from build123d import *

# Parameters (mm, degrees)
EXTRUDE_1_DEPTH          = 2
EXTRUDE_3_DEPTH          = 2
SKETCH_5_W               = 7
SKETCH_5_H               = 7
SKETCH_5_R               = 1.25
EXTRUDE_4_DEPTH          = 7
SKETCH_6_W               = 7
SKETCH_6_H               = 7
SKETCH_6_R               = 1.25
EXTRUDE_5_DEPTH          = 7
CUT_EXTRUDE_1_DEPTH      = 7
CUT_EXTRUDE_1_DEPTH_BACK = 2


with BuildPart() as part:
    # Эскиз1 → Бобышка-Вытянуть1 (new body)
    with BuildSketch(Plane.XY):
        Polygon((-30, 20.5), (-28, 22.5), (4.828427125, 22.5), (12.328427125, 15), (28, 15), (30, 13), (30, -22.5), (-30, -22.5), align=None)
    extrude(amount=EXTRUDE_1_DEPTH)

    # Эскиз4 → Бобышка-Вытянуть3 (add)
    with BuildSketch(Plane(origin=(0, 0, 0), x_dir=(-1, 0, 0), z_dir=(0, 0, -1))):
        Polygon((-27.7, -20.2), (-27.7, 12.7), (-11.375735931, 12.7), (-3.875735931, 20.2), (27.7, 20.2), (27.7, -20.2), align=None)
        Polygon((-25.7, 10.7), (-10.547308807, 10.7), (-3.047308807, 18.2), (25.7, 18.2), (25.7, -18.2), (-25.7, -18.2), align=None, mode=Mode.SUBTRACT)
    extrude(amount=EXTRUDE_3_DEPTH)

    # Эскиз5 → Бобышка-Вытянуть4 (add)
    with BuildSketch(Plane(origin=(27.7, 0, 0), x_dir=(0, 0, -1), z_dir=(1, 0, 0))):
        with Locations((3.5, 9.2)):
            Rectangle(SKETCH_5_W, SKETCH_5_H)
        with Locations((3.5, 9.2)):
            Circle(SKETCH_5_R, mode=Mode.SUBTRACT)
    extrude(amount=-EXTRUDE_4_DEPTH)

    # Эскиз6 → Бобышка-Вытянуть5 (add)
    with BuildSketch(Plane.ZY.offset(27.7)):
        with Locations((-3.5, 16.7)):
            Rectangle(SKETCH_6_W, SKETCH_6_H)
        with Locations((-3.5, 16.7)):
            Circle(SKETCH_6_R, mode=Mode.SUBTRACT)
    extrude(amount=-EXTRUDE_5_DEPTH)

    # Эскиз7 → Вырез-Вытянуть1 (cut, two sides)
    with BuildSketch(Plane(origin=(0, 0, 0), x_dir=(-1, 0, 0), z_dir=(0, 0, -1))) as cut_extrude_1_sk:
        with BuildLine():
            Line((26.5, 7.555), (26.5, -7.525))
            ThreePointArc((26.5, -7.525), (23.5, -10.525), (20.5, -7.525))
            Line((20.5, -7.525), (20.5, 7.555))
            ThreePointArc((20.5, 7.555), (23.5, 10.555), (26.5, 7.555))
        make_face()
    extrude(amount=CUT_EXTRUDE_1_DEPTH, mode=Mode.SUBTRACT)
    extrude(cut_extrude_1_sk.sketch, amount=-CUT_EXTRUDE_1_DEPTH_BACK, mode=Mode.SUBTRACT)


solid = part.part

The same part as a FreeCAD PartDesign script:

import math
import FreeCAD as App
import Part
import Sketcher
Q = App.Units.Quantity

doc = App.newDocument("Part")
params = doc.addObject("Spreadsheet::Sheet", "Params")
for row, (alias, value) in enumerate([
    ("sketch1_width", "60 mm"),
    ("sketch1_height", "43 mm"),
    ("sketch1_height2", "35.5 mm"),
    ("pad1_length", "2 mm"),
    ("sketch2_width", "55.4 mm"),
    ("sketch2_width2", "51.4 mm"),
    ("sketch2_height", "32.9 mm"),
    ("sketch2_height2", "40.4 mm"),
    ("sketch2_height3", "36.4 mm"),
    ("pad2_length", "2 mm"),
    ("sketch3_diameter", "2.5 mm"),
    ("sketch3_width", "7 mm"),
    ("pad3_length", "7 mm"),
    ("sketch4_diameter", "2.5 mm"),
    ("sketch4_width", "7 mm"),
    ("pad4_length", "7 mm"),
    ("sketch5_radius", "3 mm"),
    ("sketch5_height", "15.08 mm"),
], start=1):
    params.set(f"A{row}", alias)
    params.set(f"B{row}", "=" + value)
    params.setAlias(f"B{row}", alias)

body = doc.addObject("PartDesign::Body", "Body")

sketch1 = doc.addObject("Sketcher::SketchObject", "Sketch")
body.addObject(sketch1)
sketch1.AttachmentSupport = (doc.XY_Plane, [""])
sketch1.MapMode = "FlatFace"
sketch1.addGeometry([
    Part.LineSegment(App.Vector(-28, 22.5, 0), App.Vector(-30, 20.5, 0)),
    Part.LineSegment(App.Vector(-30, 20.5, 0), App.Vector(-30, -22.5, 0)),
    Part.LineSegment(App.Vector(-30, -22.5, 0), App.Vector(30, -22.5, 0)),
    Part.LineSegment(App.Vector(30, -22.5, 0), App.Vector(30, 13, 0)),
    Part.LineSegment(App.Vector(30, 13, 0), App.Vector(28, 15, 0)),
    Part.LineSegment(App.Vector(28, 15, 0), App.Vector(12.328427, 15, 0)),
    Part.LineSegment(App.Vector(12.328427, 15, 0), App.Vector(4.828427, 22.5, 0)),
    Part.LineSegment(App.Vector(4.828427, 22.5, 0), App.Vector(-28, 22.5, 0)),
], False)
sketch1.addConstraint([
    Sketcher.Constraint("Coincident", 0, 2, 1, 1),
    Sketcher.Constraint("Coincident", 1, 2, 2, 1),
    Sketcher.Constraint("Coincident", 2, 2, 3, 1),
    Sketcher.Constraint("Coincident", 3, 2, 4, 1),
    Sketcher.Constraint("Coincident", 4, 2, 5, 1),
    Sketcher.Constraint("Coincident", 5, 2, 6, 1),
    Sketcher.Constraint("Coincident", 6, 2, 7, 1),
    Sketcher.Constraint("Coincident", 7, 2, 0, 1),
    Sketcher.Constraint("Vertical", 1),
    Sketcher.Constraint("Horizontal", 2),
    Sketcher.Constraint("Vertical", 3),
    Sketcher.Constraint("Horizontal", 5),
    Sketcher.Constraint("Horizontal", 7),
    Sketcher.Constraint("Perpendicular", 0, 4),
    Sketcher.Constraint("Parallel", 4, 6),
    Sketcher.Constraint("Equal", 0, 4),
    Sketcher.Constraint("DistanceX", 2, 1, 2, 2, Q("60 mm")),
    Sketcher.Constraint("DistanceY", 1, 2, 1, 1, Q("43 mm")),
    Sketcher.Constraint("Angle", 0, Q("-135 deg")),
    Sketcher.Constraint("DistanceY", 3, 1, 3, 2, Q("35.5 mm")),
    Sketcher.Constraint("DistanceX", 0, 2, -1, 1, Q("30 mm")),
    Sketcher.Constraint("DistanceY", -1, 1, 3, 2, Q("13 mm")),
    Sketcher.Constraint("DistanceX", -1, 1, 4, 2, Q("28 mm")),
    Sketcher.Constraint("DistanceX", 5, 2, 5, 1, Q("15.671573 mm")),
])
sketch1.setExpression("Constraints[16]", "Params.sketch1_width")
sketch1.setExpression("Constraints[17]", "Params.sketch1_height")
sketch1.setExpression("Constraints[19]", "Params.sketch1_height2")
pad1 = doc.addObject("PartDesign::Pad", "Pad")
body.addObject(pad1)
pad1.Profile = sketch1
pad1.setExpression("Length", "Params.pad1_length")

sketch2 = doc.addObject("Sketcher::SketchObject", "Sketch001")
body.addObject(sketch2)
sketch2.AttachmentSupport = (doc.XY_Plane, [""])
sketch2.MapMode = "FlatFace"
sketch2.addGeometry([
    Part.LineSegment(App.Vector(27.7, 12.7, 0), App.Vector(27.7, -20.2, 0)),
    Part.LineSegment(App.Vector(27.7, -20.2, 0), App.Vector(-27.7, -20.2, 0)),
    Part.LineSegment(App.Vector(-27.7, -20.2, 0), App.Vector(-27.7, 20.2, 0)),
    Part.LineSegment(App.Vector(-27.7, 20.2, 0), App.Vector(3.875736, 20.2, 0)),
    Part.LineSegment(App.Vector(3.875736, 20.2, 0), App.Vector(11.375736, 12.7, 0)),
    Part.LineSegment(App.Vector(11.375736, 12.7, 0), App.Vector(27.7, 12.7, 0)),
    Part.LineSegment(App.Vector(25.7, 10.7, 0), App.Vector(10.547309, 10.7, 0)),
    Part.LineSegment(App.Vector(10.547309, 10.7, 0), App.Vector(3.047309, 18.2, 0)),
    Part.LineSegment(App.Vector(3.047309, 18.2, 0), App.Vector(-25.7, 18.2, 0)),
    Part.LineSegment(App.Vector(-25.7, 18.2, 0), App.Vector(-25.7, -18.2, 0)),
    Part.LineSegment(App.Vector(-25.7, -18.2, 0), App.Vector(25.7, -18.2, 0)),
    Part.LineSegment(App.Vector(25.7, -18.2, 0), App.Vector(25.7, 10.7, 0)),
], False)
sketch2.addConstraint([
    Sketcher.Constraint("Coincident", 0, 2, 1, 1),
    Sketcher.Constraint("Coincident", 1, 2, 2, 1),
    Sketcher.Constraint("Coincident", 2, 2, 3, 1),
    Sketcher.Constraint("Coincident", 3, 2, 4, 1),
    Sketcher.Constraint("Coincident", 4, 2, 5, 1),
    Sketcher.Constraint("Coincident", 5, 2, 0, 1),
    Sketcher.Constraint("Coincident", 6, 2, 7, 1),
    Sketcher.Constraint("Coincident", 7, 2, 8, 1),
    Sketcher.Constraint("Coincident", 8, 2, 9, 1),
    Sketcher.Constraint("Coincident", 9, 2, 10, 1),
    Sketcher.Constraint("Coincident", 10, 2, 11, 1),
    Sketcher.Constraint("Coincident", 11, 2, 6, 1),
    Sketcher.Constraint("Vertical", 0),
    Sketcher.Constraint("Horizontal", 1),
    Sketcher.Constraint("Vertical", 2),
    Sketcher.Constraint("Horizontal", 3),
    Sketcher.Constraint("Horizontal", 5),
    Sketcher.Constraint("Horizontal", 6),
    Sketcher.Constraint("Horizontal", 8),
    Sketcher.Constraint("Vertical", 9),
    Sketcher.Constraint("Horizontal", 10),
    Sketcher.Constraint("Vertical", 11),
    Sketcher.Constraint("Symmetric", 0, 2, 2, 2, -1, 1),
    Sketcher.Constraint("Symmetric", 8, 2, 10, 2, -1, 1),
    Sketcher.Constraint("Parallel", 4, 7),
    Sketcher.Constraint("Equal", 4, 7),
    Sketcher.Constraint("Angle", 4, Q("-45 deg")),
    Sketcher.Constraint("DistanceX", 1, 2, 1, 1, Q("55.4 mm")),
    Sketcher.Constraint("DistanceX", 10, 1, 10, 2, Q("51.4 mm")),
    Sketcher.Constraint("DistanceY", 0, 2, 0, 1, Q("32.9 mm")),
    Sketcher.Constraint("DistanceY", 2, 1, 2, 2, Q("40.4 mm")),
    Sketcher.Constraint("DistanceY", 9, 2, 9, 1, Q("36.4 mm")),
    Sketcher.Constraint("DistanceX", 6, 2, 6, 1, Q("15.152691 mm")),
    Sketcher.Constraint("DistanceX", 3, 1, 3, 2, Q("31.575736 mm")),
])
sketch2.setExpression("Constraints[27]", "Params.sketch2_width")
sketch2.setExpression("Constraints[28]", "Params.sketch2_width2")
sketch2.setExpression("Constraints[29]", "Params.sketch2_height")
sketch2.setExpression("Constraints[30]", "Params.sketch2_height2")
sketch2.setExpression("Constraints[31]", "Params.sketch2_height3")
pad2 = doc.addObject("PartDesign::Pad", "Pad001")
body.addObject(pad2)
pad2.Profile = sketch2
pad2.setExpression("Length", "Params.pad2_length")
pad2.Reversed = True

sketch3 = doc.addObject("Sketcher::SketchObject", "Sketch002")
body.addObject(sketch3)
sketch3.AttachmentSupport = (doc.YZ_Plane, [""])
sketch3.MapMode = "FlatFace"
sketch3.AttachmentOffset = App.Placement(App.Vector(0, 0, 27.7), App.Rotation())
sketch3.addGeometry([
    Part.LineSegment(App.Vector(12.7, 0, 0), App.Vector(5.7, 0, 0)),
    Part.LineSegment(App.Vector(5.7, 0, 0), App.Vector(5.7, -7, 0)),
    Part.LineSegment(App.Vector(5.7, -7, 0), App.Vector(12.7, -7, 0)),
    Part.LineSegment(App.Vector(12.7, -7, 0), App.Vector(12.7, 0, 0)),
    Part.Circle(App.Vector(9.2, -3.5, 0), App.Vector(0, 0, 1), 1.25),
], False)
sketch3.addConstraint([
    Sketcher.Constraint("Coincident", 0, 2, 1, 1),
    Sketcher.Constraint("Coincident", 1, 2, 2, 1),
    Sketcher.Constraint("Coincident", 2, 2, 3, 1),
    Sketcher.Constraint("Coincident", 3, 2, 0, 1),
    Sketcher.Constraint("Horizontal", 0),
    Sketcher.Constraint("Vertical", 1),
    Sketcher.Constraint("Horizontal", 2),
    Sketcher.Constraint("Vertical", 3),
    Sketcher.Constraint("PointOnObject", 0, 2, -1),
    Sketcher.Constraint("Equal", 2, 1),
    Sketcher.Constraint("Diameter", 4, Q("2.5 mm")),
    Sketcher.Constraint("DistanceX", 0, 2, 0, 1, Q("7 mm")),
    Sketcher.Constraint("DistanceX", -1, 1, 4, 3, Q("9.2 mm")),
    Sketcher.Constraint("DistanceY", 4, 3, -1, 1, Q("3.5 mm")),
    Sketcher.Constraint("DistanceX", -1, 1, 0, 2, Q("5.7 mm")),
])
sketch3.setExpression("Constraints[10]", "Params.sketch3_diameter")
sketch3.setExpression("Constraints[11]", "Params.sketch3_width")
pad3 = doc.addObject("PartDesign::Pad", "Pad002")
body.addObject(pad3)
pad3.Profile = sketch3
pad3.setExpression("Length", "Params.pad3_length")
pad3.Reversed = True

sketch4 = doc.addObject("Sketcher::SketchObject", "Sketch003")
body.addObject(sketch4)
sketch4.AttachmentSupport = (doc.YZ_Plane, [""])
sketch4.MapMode = "FlatFace"
sketch4.AttachmentOffset = App.Placement(App.Vector(0, 0, -27.7), App.Rotation())
sketch4.addGeometry([
    Part.LineSegment(App.Vector(20.2, -7, 0), App.Vector(13.2, -7, 0)),
    Part.LineSegment(App.Vector(13.2, -7, 0), App.Vector(13.2, 0, 0)),
    Part.LineSegment(App.Vector(13.2, 0, 0), App.Vector(20.2, 0, 0)),
    Part.LineSegment(App.Vector(20.2, 0, 0), App.Vector(20.2, -7, 0)),
    Part.Circle(App.Vector(16.7, -3.5, 0), App.Vector(0, 0, 1), 1.25),
], False)
sketch4.addConstraint([
    Sketcher.Constraint("Coincident", 0, 2, 1, 1),
    Sketcher.Constraint("Coincident", 1, 2, 2, 1),
    Sketcher.Constraint("Coincident", 2, 2, 3, 1),
    Sketcher.Constraint("Coincident", 3, 2, 0, 1),
    Sketcher.Constraint("Horizontal", 0),
    Sketcher.Constraint("Vertical", 1),
    Sketcher.Constraint("Horizontal", 2),
    Sketcher.Constraint("Vertical", 3),
    Sketcher.Constraint("PointOnObject", 1, 2, -1),
    Sketcher.Constraint("Equal", 2, 1),
    Sketcher.Constraint("Diameter", 4, Q("2.5 mm")),
    Sketcher.Constraint("DistanceX", 0, 2, 0, 1, Q("7 mm")),
    Sketcher.Constraint("DistanceX", -1, 1, 4, 3, Q("16.7 mm")),
    Sketcher.Constraint("DistanceY", 4, 3, -1, 1, Q("3.5 mm")),
    Sketcher.Constraint("DistanceX", -1, 1, 0, 2, Q("13.2 mm")),
])
sketch4.setExpression("Constraints[10]", "Params.sketch4_diameter")
sketch4.setExpression("Constraints[11]", "Params.sketch4_width")
pad4 = doc.addObject("PartDesign::Pad", "Pad003")
body.addObject(pad4)
pad4.Profile = sketch4
pad4.setExpression("Length", "Params.pad4_length")

sketch5 = doc.addObject("Sketcher::SketchObject", "Sketch004")
body.addObject(sketch5)
sketch5.AttachmentSupport = (doc.XY_Plane, [""])
sketch5.MapMode = "FlatFace"
sketch5.addGeometry([
    Part.LineSegment(App.Vector(-26.5, -7.525, 0), App.Vector(-26.5, 7.555, 0)),
    Part.ArcOfCircle(Part.Circle(App.Vector(-23.5, 7.555, 0), App.Vector(0, 0, 1), 3), math.radians(0), math.radians(180)),
    Part.LineSegment(App.Vector(-20.5, 7.555, 0), App.Vector(-20.5, -7.525, 0)),
    Part.ArcOfCircle(Part.Circle(App.Vector(-23.5, -7.525, 0), App.Vector(0, 0, 1), 3), math.radians(180), math.radians(360)),
], False)
sketch5.addConstraint([
    Sketcher.Constraint("Tangent", 0, 2, 1, 2),
    Sketcher.Constraint("Tangent", 1, 1, 2, 1),
    Sketcher.Constraint("Tangent", 2, 2, 3, 2),
    Sketcher.Constraint("Tangent", 3, 1, 0, 1),
    Sketcher.Constraint("Vertical", 0),
    Sketcher.Constraint("Vertical", 2),
    Sketcher.Constraint("Radius", 1, Q("3 mm")),
    Sketcher.Constraint("DistanceY", 0, 1, 0, 2, Q("15.08 mm")),
    Sketcher.Constraint("DistanceX", 1, 3, -1, 1, Q("23.5 mm")),
    Sketcher.Constraint("DistanceY", -1, 1, 1, 3, Q("7.555 mm")),
])
sketch5.setExpression("Constraints[6]", "Params.sketch5_radius")
sketch5.setExpression("Constraints[7]", "Params.sketch5_height")
pocket1 = doc.addObject("PartDesign::Pocket", "Pocket")
body.addObject(pocket1)
pocket1.Profile = sketch5
pocket1.Type = "ThroughAll"
pocket1.Midplane = True

doc.recompute()
